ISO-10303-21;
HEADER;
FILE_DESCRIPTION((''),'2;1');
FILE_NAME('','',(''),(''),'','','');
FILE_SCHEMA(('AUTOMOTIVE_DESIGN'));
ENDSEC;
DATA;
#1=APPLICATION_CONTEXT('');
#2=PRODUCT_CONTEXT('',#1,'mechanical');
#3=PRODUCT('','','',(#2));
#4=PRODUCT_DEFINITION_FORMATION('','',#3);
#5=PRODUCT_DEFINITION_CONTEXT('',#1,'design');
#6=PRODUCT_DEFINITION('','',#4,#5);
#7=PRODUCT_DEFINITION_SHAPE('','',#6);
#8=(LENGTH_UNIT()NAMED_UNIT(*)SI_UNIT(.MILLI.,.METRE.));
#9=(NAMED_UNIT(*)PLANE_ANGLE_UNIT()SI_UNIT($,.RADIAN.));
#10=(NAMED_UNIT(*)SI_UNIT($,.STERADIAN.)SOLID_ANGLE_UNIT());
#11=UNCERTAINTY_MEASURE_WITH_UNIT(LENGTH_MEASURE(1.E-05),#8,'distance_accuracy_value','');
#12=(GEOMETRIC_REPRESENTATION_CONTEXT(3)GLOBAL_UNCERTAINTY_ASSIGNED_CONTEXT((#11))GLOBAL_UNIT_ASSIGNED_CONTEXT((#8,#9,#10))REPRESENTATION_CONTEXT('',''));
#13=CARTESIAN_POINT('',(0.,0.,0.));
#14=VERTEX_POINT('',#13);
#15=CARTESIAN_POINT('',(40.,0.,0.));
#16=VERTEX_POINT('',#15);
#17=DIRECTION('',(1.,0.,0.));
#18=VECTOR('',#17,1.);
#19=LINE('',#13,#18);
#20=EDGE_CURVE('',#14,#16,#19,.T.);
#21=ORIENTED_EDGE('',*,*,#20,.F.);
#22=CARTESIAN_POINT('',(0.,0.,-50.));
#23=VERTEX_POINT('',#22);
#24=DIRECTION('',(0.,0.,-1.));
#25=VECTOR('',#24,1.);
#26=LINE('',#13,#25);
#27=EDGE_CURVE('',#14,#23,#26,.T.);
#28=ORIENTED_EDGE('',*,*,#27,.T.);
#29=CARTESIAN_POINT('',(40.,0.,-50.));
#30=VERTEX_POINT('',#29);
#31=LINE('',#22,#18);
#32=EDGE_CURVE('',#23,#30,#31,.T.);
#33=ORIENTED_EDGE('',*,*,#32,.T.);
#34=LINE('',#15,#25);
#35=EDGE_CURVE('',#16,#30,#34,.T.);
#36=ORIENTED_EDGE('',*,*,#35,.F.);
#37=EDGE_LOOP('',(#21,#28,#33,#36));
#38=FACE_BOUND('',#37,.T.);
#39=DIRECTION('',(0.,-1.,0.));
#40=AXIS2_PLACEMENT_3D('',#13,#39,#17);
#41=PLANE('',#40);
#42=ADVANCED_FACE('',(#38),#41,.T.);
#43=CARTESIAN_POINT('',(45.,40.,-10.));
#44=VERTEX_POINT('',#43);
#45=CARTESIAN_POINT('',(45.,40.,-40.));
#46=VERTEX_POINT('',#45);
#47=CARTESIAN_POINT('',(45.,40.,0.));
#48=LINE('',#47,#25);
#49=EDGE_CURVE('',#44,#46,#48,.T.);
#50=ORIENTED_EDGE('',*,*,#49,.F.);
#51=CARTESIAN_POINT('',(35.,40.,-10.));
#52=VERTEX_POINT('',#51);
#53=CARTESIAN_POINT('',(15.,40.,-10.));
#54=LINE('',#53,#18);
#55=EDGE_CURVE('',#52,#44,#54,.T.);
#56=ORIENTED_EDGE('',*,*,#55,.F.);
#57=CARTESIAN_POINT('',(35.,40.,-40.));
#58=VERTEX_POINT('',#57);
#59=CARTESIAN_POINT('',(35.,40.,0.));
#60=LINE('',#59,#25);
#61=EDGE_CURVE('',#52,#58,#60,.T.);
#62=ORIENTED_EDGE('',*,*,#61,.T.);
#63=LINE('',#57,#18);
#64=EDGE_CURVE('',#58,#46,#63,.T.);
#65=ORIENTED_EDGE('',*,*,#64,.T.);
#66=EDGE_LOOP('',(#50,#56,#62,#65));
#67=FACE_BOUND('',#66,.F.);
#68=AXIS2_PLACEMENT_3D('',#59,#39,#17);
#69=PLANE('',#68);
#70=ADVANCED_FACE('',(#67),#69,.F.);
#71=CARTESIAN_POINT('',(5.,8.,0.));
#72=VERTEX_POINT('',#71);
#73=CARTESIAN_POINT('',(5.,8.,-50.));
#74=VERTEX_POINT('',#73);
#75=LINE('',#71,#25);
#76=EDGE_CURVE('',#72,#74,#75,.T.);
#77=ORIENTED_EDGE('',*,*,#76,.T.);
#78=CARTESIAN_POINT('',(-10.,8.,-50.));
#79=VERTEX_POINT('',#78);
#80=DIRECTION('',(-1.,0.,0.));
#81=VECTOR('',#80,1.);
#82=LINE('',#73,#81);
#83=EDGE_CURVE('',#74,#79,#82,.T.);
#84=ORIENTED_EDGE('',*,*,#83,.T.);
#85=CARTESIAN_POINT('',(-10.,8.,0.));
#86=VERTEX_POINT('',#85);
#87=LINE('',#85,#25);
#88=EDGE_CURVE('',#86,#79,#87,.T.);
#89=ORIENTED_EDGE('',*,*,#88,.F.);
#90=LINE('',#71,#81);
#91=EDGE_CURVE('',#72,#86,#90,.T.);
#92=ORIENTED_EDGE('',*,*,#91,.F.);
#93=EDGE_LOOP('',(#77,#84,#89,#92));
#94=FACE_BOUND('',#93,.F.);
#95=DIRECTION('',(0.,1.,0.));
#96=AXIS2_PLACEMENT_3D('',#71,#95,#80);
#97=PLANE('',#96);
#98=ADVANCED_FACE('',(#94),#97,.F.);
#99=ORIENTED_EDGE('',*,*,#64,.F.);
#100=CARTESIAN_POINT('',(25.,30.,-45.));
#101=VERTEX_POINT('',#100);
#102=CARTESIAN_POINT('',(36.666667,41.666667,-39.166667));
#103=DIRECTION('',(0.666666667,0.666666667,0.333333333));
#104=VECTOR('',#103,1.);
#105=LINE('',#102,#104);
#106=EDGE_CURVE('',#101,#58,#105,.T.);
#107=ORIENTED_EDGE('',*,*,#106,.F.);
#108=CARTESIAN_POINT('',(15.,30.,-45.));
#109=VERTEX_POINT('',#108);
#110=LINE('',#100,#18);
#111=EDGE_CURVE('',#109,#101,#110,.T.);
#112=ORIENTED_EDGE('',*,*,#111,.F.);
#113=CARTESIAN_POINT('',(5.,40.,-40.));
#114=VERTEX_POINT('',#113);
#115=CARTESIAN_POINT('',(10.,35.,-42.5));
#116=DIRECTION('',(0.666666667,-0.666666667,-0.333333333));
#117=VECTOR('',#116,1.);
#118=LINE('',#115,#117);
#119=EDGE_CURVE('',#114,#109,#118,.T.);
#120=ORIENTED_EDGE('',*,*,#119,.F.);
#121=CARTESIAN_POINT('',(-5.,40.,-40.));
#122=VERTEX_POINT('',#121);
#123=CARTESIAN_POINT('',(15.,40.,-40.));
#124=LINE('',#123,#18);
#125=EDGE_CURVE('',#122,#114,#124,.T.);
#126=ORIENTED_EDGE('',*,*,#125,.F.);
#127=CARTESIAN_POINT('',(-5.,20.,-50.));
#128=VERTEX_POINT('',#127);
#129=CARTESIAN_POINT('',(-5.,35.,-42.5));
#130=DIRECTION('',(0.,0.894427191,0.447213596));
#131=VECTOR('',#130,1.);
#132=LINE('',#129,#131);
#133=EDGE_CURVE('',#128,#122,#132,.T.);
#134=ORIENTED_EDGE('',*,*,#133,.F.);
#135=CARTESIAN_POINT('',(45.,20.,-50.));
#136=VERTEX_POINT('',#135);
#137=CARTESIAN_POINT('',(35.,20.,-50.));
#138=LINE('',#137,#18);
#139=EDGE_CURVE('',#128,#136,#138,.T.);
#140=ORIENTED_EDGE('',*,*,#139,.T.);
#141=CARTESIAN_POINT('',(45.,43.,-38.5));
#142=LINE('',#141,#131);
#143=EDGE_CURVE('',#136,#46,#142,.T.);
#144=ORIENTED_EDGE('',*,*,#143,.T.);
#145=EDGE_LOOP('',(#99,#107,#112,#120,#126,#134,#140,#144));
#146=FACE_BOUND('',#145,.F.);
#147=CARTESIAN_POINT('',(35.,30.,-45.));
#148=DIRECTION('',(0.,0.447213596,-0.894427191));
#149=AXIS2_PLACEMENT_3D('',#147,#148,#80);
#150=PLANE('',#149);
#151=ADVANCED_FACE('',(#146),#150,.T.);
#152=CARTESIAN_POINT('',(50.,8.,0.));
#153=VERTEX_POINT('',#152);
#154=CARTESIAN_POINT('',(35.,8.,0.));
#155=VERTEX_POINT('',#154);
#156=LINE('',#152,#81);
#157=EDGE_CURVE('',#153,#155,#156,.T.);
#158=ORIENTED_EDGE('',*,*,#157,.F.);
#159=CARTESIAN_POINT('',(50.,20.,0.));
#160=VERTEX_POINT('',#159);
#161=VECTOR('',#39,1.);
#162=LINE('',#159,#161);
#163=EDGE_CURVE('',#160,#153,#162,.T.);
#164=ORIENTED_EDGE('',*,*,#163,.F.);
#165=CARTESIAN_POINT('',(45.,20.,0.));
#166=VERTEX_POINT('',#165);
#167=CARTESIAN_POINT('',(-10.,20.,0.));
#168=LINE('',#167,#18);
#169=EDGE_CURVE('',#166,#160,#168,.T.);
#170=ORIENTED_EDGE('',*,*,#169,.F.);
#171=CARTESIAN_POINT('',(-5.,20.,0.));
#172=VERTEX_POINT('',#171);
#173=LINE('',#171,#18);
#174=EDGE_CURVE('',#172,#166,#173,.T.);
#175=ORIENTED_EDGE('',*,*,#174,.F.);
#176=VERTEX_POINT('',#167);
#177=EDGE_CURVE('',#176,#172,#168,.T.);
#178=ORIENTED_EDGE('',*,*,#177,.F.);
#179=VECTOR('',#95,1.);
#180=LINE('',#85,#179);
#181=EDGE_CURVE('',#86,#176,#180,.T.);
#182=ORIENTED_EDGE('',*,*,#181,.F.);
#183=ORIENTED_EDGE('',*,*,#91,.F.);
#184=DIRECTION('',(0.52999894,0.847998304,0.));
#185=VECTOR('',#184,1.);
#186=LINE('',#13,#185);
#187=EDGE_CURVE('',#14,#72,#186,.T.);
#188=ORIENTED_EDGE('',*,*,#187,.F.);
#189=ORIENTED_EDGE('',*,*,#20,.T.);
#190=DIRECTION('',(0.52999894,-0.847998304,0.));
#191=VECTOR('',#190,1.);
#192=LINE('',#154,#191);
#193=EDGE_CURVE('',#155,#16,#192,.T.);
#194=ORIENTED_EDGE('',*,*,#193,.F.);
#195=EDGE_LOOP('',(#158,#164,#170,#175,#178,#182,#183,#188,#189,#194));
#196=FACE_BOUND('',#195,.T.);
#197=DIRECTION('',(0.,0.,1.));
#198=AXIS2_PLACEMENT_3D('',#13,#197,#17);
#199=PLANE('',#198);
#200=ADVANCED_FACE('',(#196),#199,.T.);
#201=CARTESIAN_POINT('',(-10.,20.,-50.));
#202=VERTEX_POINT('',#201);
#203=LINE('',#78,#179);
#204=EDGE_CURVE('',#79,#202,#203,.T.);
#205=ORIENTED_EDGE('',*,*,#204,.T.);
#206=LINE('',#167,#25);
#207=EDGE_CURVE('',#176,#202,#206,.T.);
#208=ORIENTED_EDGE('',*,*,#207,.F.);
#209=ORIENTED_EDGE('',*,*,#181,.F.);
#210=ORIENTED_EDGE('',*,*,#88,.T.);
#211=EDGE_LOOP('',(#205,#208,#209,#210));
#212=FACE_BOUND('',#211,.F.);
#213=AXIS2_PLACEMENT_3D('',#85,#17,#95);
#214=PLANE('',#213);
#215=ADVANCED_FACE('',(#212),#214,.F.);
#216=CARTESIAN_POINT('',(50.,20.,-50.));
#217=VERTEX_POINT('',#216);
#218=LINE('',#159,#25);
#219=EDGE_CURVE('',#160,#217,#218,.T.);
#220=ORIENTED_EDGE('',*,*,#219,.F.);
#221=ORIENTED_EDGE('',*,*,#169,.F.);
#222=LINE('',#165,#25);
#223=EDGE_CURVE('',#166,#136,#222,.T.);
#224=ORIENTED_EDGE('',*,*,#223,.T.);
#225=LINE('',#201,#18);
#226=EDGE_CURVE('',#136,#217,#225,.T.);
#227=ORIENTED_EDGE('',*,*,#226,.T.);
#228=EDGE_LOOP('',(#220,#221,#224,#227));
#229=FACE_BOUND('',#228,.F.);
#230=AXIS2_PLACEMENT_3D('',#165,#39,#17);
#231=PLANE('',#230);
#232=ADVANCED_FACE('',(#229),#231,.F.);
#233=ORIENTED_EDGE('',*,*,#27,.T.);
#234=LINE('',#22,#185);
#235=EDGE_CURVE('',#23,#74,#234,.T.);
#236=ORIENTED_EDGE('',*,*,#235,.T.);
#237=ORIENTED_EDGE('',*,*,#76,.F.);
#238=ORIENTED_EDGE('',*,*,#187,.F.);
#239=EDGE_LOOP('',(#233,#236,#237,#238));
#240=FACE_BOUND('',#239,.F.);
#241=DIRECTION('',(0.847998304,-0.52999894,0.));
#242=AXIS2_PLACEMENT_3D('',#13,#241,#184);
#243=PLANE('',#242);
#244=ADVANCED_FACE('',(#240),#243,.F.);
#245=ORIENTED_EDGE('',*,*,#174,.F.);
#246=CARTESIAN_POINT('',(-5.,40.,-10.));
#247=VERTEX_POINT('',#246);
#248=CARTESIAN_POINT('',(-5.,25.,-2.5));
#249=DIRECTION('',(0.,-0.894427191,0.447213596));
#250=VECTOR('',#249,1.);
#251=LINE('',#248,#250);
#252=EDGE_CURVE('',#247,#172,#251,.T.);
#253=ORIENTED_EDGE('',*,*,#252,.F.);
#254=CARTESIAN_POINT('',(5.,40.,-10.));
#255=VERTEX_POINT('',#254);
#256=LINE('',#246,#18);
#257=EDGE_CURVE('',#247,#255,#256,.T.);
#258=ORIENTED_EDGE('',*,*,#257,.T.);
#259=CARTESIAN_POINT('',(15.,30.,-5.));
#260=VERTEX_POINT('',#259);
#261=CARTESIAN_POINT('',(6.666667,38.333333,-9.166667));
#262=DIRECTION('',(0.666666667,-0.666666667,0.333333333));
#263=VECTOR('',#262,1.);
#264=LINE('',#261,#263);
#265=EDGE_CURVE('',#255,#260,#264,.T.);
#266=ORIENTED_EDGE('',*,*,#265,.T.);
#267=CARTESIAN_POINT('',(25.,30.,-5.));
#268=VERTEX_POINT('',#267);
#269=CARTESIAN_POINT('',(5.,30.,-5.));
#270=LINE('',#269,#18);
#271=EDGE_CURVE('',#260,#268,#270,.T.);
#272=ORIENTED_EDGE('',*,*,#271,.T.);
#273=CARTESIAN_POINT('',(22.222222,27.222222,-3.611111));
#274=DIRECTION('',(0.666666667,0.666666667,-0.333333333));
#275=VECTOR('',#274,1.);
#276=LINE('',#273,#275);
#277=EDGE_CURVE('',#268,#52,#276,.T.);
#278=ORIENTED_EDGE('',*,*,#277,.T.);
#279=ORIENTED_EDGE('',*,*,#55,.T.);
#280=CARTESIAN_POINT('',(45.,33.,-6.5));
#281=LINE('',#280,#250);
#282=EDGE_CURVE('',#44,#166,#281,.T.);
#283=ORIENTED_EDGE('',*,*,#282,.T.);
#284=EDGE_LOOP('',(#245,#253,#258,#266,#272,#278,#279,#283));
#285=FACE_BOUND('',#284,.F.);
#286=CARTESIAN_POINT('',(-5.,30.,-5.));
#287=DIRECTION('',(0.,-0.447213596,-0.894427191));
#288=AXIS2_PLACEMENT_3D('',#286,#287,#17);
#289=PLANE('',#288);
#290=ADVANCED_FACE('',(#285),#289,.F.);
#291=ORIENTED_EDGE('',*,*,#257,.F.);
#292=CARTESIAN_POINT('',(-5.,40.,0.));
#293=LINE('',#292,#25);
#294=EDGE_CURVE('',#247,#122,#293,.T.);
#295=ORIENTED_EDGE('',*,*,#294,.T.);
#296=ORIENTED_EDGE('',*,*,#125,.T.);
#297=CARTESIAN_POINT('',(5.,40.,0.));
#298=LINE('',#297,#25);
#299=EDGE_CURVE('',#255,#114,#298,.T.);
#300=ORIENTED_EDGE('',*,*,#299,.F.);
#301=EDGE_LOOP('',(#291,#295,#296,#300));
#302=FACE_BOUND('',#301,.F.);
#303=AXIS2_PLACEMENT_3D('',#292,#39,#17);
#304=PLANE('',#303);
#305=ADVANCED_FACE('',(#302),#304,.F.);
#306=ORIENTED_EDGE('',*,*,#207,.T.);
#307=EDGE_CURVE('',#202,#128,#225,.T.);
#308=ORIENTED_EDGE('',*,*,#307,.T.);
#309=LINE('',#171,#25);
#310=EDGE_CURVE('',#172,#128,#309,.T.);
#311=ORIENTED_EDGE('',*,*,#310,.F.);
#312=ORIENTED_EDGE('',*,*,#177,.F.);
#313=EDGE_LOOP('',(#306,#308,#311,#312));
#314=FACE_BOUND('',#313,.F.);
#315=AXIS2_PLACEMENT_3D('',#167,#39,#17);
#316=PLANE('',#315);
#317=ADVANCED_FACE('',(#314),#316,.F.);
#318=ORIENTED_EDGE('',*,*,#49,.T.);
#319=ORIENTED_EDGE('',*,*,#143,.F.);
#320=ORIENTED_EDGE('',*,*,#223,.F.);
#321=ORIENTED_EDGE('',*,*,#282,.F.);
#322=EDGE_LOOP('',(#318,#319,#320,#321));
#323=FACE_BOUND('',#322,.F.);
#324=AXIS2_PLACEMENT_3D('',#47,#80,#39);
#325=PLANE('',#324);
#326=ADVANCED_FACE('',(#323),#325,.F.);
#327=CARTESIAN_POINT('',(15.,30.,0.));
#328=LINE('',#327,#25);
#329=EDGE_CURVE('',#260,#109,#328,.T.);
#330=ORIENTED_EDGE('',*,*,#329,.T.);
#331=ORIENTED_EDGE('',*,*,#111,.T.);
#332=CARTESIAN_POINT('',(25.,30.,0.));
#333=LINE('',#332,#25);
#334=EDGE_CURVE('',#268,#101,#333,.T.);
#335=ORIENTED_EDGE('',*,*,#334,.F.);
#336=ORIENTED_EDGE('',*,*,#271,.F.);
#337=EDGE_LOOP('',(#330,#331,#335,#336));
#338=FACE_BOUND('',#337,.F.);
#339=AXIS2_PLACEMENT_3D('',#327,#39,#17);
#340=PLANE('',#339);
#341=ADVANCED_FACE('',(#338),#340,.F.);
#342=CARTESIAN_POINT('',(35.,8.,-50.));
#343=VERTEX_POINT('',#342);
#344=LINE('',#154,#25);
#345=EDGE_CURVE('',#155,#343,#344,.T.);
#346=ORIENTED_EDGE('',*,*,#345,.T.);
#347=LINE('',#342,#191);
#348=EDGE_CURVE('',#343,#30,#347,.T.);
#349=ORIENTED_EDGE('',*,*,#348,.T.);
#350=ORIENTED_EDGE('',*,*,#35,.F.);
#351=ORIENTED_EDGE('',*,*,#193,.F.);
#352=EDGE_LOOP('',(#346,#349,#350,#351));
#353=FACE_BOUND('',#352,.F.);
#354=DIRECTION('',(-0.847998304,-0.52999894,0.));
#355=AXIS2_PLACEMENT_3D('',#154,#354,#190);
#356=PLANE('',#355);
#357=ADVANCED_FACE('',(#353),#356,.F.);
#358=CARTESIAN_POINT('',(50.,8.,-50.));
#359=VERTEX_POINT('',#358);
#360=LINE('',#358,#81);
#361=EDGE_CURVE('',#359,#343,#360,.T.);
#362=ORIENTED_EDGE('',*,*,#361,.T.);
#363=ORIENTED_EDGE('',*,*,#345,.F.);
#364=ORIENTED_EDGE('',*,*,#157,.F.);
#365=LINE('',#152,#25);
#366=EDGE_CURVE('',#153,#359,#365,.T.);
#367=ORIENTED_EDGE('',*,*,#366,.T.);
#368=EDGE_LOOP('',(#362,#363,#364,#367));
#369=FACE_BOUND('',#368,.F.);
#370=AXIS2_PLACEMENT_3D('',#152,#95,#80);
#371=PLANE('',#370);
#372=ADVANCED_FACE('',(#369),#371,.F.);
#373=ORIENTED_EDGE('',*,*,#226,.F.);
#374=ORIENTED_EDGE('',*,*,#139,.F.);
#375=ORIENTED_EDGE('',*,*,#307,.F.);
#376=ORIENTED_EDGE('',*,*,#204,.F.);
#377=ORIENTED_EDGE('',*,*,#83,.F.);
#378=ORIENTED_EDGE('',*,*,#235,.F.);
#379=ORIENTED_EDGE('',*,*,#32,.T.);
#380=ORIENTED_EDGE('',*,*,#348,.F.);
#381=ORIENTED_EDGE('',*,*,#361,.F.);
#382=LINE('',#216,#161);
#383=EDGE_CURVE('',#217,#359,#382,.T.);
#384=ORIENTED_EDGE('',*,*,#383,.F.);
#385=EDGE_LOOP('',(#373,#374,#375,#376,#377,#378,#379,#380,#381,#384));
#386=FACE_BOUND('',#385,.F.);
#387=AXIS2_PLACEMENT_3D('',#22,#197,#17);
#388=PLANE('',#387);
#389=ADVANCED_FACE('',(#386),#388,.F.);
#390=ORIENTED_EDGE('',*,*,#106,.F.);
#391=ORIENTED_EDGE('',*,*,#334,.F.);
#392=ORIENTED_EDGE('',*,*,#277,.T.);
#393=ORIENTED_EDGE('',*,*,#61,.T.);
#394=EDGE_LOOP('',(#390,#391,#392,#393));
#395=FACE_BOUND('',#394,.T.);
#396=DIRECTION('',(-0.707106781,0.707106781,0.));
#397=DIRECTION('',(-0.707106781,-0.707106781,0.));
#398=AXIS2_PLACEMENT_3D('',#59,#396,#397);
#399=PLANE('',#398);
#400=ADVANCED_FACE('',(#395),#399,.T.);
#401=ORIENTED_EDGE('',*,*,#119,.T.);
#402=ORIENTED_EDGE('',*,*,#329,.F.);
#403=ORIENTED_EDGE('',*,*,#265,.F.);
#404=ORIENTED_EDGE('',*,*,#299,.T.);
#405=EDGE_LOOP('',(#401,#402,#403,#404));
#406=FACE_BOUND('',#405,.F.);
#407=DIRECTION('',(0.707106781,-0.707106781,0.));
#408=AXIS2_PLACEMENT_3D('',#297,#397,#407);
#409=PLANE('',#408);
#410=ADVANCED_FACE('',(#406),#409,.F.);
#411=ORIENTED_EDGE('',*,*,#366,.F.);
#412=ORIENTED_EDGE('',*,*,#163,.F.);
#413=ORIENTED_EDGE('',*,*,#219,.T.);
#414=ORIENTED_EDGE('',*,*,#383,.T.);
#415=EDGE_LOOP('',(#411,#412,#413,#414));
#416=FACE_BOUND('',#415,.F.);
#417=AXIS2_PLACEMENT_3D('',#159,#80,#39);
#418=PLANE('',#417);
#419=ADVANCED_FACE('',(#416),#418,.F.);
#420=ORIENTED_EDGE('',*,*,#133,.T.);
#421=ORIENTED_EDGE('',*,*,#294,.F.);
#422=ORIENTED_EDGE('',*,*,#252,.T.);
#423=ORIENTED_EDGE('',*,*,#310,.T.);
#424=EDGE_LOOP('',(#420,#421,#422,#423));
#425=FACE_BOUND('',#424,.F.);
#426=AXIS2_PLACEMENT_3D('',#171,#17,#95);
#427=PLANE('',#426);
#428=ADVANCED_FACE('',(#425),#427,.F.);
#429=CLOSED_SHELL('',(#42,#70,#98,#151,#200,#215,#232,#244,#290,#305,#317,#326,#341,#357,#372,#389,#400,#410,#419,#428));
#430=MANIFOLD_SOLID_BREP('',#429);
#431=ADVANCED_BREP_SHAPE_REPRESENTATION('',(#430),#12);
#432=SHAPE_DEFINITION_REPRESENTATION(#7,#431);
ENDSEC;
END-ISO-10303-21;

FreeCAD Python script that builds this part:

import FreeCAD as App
import Part
import Sketcher
Q = App.Units.Quantity


def edges_at(feature, points):
    """Names of the edges that pass closest to the given points."""
    edges = feature.Shape.Edges
    near = lambda p: min(range(len(edges)), key=lambda i: edges[i].distToShape(Part.Vertex(*p))[0])
    return sorted({f"Edge{near(p) + 1}" for p in points})


def add_polygon(sketch, points):
    """Adds a closed chain of lines whose ends are joined by coincident constraints."""
    first, n = sketch.GeometryCount, len(points)
    for a, b in zip(points, points[1:] + points[:1]):
        sketch.addGeometry(Part.LineSegment(App.Vector(*a, 0), App.Vector(*b, 0)), False)
    for i in range(n):
        sketch.addConstraint(Sketcher.Constraint("Coincident", first + i, 2, first + (i + 1) % n, 1))

doc = App.newDocument("Part")
body = doc.addObject("PartDesign::Body", "Body")

sketch1 = doc.addObject("Sketcher::SketchObject", "Sketch")
body.addObject(sketch1)
sketch1.AttachmentSupport = (doc.XY_Plane, [""])
sketch1.MapMode = "FlatFace"
add_polygon(sketch1, [(5, 8), (0, 0), (40, 0), (35, 8), (50, 8), (50, 20), (45, 20), (45, 40), (35, 40), (25, 30), (15, 30), (5, 40), (-5, 40), (-5, 20), (-10, 20), (-10, 8)])
sketch1.addConstraint(Sketcher.Constraint("Horizontal", 1))
sketch1.addConstraint(Sketcher.Constraint("Horizontal", 3))
sketch1.addConstraint(Sketcher.Constraint("Vertical", 4))
sketch1.addConstraint(Sketcher.Constraint("Horizontal", 5))
sketch1.addConstraint(Sketcher.Constraint("Vertical", 6))
sketch1.addConstraint(Sketcher.Constraint("Horizontal", 7))
sketch1.addConstraint(Sketcher.Constraint("Horizontal", 9))
sketch1.addConstraint(Sketcher.Constraint("Horizontal", 11))
sketch1.addConstraint(Sketcher.Constraint("Vertical", 12))
sketch1.addConstraint(Sketcher.Constraint("Horizontal", 13))
sketch1.addConstraint(Sketcher.Constraint("Vertical", 14))
sketch1.addConstraint(Sketcher.Constraint("Horizontal", 15))
sketch1.addConstraint(Sketcher.Constraint("Coincident", 0, 2, -1, 1))
sketch1.addConstraint(Sketcher.Constraint("Perpendicular", 8, 10))
sketch1.addConstraint(Sketcher.Constraint("Horizontal", 7, 2, 10, 2))
sketch1.addConstraint(Sketcher.Constraint("Horizontal", 5, 2, 12, 2))
sketch1.addConstraint(Sketcher.Constraint("Horizontal", 3, 2, 14, 2))
sketch1.addConstraint(Sketcher.Constraint("Vertical", 2, 2, 7, 2))
sketch1.addConstraint(Sketcher.Constraint("Vertical", 10, 2, 15, 2))
sketch1.addConstraint(Sketcher.Constraint("Equal", 7, 9))
sketch1.addConstraint(Sketcher.Constraint("Equal", 9, 11))
sketch1.addConstraint(Sketcher.Constraint("Equal", 5, 13))
sketch1.addConstraint(Sketcher.Constraint("Equal", 0, 2))
sketch1.addConstraint(Sketcher.Constraint("Equal", 8, 10))
sketch1.addConstraint(Sketcher.Constraint("DistanceX", 1, 1, 1, 2, Q("40 mm")))
sketch1.addConstraint(Sketcher.Constraint("DistanceX", 5, 2, 5, 1, Q("5 mm")))
sketch1.addConstraint(Sketcher.Constraint("DistanceX", 7, 2, 7, 1, Q("10 mm")))
sketch1.addConstraint(Sketcher.Constraint("DistanceY", 4, 1, 4, 2, Q("12 mm")))
sketch1.addConstraint(Sketcher.Constraint("DistanceY", 6, 1, 6, 2, Q("20 mm")))
sketch1.addConstraint(Sketcher.Constraint("DistanceY", -1, 1, 2, 2, Q("8 mm")))
sketch1.addConstraint(Sketcher.Constraint("DistanceY", -1, 1, 8, 2, Q("30 mm")))
pad1 = doc.addObject("PartDesign::Pad", "Pad")
body.addObject(pad1)
pad1.Profile = sketch1
pad1.Length = 50
pad1.Reversed = True
doc.recompute()

chamfer = doc.addObject("PartDesign::Chamfer", "Chamfer")
body.addObject(chamfer)
chamfer.Base = (pad1, edges_at(pad1, [(0, 40, 0)]))
chamfer.ChamferType = "Two distances"
chamfer.Size = 10
chamfer.Size2 = 20
doc.recompute()

chamfer2 = doc.addObject("PartDesign::Chamfer", "Chamfer001")
body.addObject(chamfer2)
chamfer2.Base = (chamfer, edges_at(chamfer, [(40, 40, -50)]))
chamfer2.ChamferType = "Two distances"
chamfer2.Size = 20
chamfer2.Size2 = 10
chamfer2.FlipDirection = True

doc.recompute()
